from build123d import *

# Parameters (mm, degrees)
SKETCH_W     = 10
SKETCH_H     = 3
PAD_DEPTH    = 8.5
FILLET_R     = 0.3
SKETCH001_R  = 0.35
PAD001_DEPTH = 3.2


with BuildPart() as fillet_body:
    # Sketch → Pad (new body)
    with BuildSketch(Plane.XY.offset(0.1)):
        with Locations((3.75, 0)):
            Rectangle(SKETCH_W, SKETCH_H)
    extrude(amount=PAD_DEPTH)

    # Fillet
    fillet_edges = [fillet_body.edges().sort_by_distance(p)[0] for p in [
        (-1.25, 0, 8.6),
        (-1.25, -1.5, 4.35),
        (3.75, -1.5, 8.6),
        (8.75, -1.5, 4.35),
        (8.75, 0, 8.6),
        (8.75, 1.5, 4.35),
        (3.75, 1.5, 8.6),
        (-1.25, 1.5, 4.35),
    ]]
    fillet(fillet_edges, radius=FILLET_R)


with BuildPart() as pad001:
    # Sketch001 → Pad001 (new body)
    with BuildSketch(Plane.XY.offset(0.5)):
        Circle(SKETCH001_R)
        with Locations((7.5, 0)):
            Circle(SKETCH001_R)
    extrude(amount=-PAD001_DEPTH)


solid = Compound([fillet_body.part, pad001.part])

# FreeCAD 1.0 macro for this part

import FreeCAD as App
import Part
import Sketcher

V = App.Vector
Q = App.Units.Quantity


def edges_at(feature, points):
    """Names of the edges that pass closest to the given points."""
    edges = feature.Shape.Edges
    near = lambda p: min(range(len(edges)), key=lambda i: edges[i].distToShape(Part.Vertex(*p))[0])
    return sorted({f"Edge{near(p) + 1}" for p in points})


def add_polygon(sketch, points):
    """Adds a closed chain of lines whose ends are joined by coincident constraints."""
    first, n = sketch.GeometryCount, len(points)
    for a, b in zip(points, points[1:] + points[:1]):
        sketch.addGeometry(Part.LineSegment(App.Vector(*a, 0), App.Vector(*b, 0)), False)
    for i in range(n):
        sketch.addConstraint(Sketcher.Constraint("Coincident", first + i, 2, first + (i + 1) % n, 1))

doc = App.newDocument("Part")
body = doc.addObject("PartDesign::Body", "Body")

# Sketch on XY plane
sketch1 = body.newObject("Sketcher::SketchObject", "Sketch")
sketch1.AttachmentSupport = (doc.getObject("XY_Plane"), [""])
sketch1.MapMode = "FlatFace"
sketch1.AttachmentOffset = App.Placement(V(0, 0, 0.1), App.Rotation())
add_polygon(sketch1, [(-1.25, 1.5), (-1.25, -1.5), (8.75, -1.5), (8.75, 1.5)])  # lines 0-3
sketch1.addConstraint([
    Sketcher.Constraint("Vertical", 0),
    Sketcher.Constraint("Horizontal", 1),
    Sketcher.Constraint("Vertical", 2),
    Sketcher.Constraint("Horizontal", 3),
    Sketcher.Constraint("DistanceX", 1, 1, 1, 2, Q("10 mm")),
    Sketcher.Constraint("DistanceY", 0, 2, 0, 1, Q("3 mm")),
    Sketcher.Constraint("DistanceY", 0, 2, -1, 1, Q("1.5 mm")),
    Sketcher.Constraint("DistanceX", 0, 2, -1, 1, Q("1.25 mm")),
])
pad1 = body.newObject("PartDesign::Pad", "Pad")
pad1.Profile = sketch1
pad1.Length = 8.5
doc.recompute()

fillet = body.newObject("PartDesign::Fillet", "Fillet")
fillet.Base = (pad1, edges_at(pad1, [
    (-1.25, 0, 8.6),
    (-1.25, -1.5, 4.35),
    (3.75, -1.5, 8.6),
    (8.75, -1.5, 4.35),
    (8.75, 0, 8.6),
    (8.75, 1.5, 4.35),
    (3.75, 1.5, 8.6),
    (-1.25, 1.5, 4.35),
]))
fillet.Radius = 0.3
body2 = doc.addObject("PartDesign::Body", "Body001")
body2.AllowCompound = True

# Sketch on XY plane
sketch2 = body2.newObject("Sketcher::SketchObject", "Sketch001")
sketch2.AttachmentSupport = (doc.getObject("XY_Plane001"), [""])
sketch2.MapMode = "FlatFace"
sketch2.AttachmentOffset = App.Placement(V(0, 0, 0.5), App.Rotation())
sketch2.addGeometry([
    Part.Circle(V(0, 0, 0), V(0, 0, 1), 0.35),
    Part.Circle(V(7.5, 0, 0), V(0, 0, 1), 0.35),
], False)
sketch2.addConstraint([
    Sketcher.Constraint("Coincident", 0, 3, -1, 1),
    Sketcher.Constraint("Equal", 0, 1),
    Sketcher.Constraint("PointOnObject", 1, 3, -1),
    Sketcher.Constraint("Diameter", 0, Q("0.7 mm")),
    Sketcher.Constraint("DistanceX", -1, 1, 1, 3, Q("7.5 mm")),
])
pad2 = body2.newObject("PartDesign::Pad", "Pad001")
pad2.Profile = sketch2
pad2.Length = 3.2
pad2.Reversed = True

doc.recompute()
